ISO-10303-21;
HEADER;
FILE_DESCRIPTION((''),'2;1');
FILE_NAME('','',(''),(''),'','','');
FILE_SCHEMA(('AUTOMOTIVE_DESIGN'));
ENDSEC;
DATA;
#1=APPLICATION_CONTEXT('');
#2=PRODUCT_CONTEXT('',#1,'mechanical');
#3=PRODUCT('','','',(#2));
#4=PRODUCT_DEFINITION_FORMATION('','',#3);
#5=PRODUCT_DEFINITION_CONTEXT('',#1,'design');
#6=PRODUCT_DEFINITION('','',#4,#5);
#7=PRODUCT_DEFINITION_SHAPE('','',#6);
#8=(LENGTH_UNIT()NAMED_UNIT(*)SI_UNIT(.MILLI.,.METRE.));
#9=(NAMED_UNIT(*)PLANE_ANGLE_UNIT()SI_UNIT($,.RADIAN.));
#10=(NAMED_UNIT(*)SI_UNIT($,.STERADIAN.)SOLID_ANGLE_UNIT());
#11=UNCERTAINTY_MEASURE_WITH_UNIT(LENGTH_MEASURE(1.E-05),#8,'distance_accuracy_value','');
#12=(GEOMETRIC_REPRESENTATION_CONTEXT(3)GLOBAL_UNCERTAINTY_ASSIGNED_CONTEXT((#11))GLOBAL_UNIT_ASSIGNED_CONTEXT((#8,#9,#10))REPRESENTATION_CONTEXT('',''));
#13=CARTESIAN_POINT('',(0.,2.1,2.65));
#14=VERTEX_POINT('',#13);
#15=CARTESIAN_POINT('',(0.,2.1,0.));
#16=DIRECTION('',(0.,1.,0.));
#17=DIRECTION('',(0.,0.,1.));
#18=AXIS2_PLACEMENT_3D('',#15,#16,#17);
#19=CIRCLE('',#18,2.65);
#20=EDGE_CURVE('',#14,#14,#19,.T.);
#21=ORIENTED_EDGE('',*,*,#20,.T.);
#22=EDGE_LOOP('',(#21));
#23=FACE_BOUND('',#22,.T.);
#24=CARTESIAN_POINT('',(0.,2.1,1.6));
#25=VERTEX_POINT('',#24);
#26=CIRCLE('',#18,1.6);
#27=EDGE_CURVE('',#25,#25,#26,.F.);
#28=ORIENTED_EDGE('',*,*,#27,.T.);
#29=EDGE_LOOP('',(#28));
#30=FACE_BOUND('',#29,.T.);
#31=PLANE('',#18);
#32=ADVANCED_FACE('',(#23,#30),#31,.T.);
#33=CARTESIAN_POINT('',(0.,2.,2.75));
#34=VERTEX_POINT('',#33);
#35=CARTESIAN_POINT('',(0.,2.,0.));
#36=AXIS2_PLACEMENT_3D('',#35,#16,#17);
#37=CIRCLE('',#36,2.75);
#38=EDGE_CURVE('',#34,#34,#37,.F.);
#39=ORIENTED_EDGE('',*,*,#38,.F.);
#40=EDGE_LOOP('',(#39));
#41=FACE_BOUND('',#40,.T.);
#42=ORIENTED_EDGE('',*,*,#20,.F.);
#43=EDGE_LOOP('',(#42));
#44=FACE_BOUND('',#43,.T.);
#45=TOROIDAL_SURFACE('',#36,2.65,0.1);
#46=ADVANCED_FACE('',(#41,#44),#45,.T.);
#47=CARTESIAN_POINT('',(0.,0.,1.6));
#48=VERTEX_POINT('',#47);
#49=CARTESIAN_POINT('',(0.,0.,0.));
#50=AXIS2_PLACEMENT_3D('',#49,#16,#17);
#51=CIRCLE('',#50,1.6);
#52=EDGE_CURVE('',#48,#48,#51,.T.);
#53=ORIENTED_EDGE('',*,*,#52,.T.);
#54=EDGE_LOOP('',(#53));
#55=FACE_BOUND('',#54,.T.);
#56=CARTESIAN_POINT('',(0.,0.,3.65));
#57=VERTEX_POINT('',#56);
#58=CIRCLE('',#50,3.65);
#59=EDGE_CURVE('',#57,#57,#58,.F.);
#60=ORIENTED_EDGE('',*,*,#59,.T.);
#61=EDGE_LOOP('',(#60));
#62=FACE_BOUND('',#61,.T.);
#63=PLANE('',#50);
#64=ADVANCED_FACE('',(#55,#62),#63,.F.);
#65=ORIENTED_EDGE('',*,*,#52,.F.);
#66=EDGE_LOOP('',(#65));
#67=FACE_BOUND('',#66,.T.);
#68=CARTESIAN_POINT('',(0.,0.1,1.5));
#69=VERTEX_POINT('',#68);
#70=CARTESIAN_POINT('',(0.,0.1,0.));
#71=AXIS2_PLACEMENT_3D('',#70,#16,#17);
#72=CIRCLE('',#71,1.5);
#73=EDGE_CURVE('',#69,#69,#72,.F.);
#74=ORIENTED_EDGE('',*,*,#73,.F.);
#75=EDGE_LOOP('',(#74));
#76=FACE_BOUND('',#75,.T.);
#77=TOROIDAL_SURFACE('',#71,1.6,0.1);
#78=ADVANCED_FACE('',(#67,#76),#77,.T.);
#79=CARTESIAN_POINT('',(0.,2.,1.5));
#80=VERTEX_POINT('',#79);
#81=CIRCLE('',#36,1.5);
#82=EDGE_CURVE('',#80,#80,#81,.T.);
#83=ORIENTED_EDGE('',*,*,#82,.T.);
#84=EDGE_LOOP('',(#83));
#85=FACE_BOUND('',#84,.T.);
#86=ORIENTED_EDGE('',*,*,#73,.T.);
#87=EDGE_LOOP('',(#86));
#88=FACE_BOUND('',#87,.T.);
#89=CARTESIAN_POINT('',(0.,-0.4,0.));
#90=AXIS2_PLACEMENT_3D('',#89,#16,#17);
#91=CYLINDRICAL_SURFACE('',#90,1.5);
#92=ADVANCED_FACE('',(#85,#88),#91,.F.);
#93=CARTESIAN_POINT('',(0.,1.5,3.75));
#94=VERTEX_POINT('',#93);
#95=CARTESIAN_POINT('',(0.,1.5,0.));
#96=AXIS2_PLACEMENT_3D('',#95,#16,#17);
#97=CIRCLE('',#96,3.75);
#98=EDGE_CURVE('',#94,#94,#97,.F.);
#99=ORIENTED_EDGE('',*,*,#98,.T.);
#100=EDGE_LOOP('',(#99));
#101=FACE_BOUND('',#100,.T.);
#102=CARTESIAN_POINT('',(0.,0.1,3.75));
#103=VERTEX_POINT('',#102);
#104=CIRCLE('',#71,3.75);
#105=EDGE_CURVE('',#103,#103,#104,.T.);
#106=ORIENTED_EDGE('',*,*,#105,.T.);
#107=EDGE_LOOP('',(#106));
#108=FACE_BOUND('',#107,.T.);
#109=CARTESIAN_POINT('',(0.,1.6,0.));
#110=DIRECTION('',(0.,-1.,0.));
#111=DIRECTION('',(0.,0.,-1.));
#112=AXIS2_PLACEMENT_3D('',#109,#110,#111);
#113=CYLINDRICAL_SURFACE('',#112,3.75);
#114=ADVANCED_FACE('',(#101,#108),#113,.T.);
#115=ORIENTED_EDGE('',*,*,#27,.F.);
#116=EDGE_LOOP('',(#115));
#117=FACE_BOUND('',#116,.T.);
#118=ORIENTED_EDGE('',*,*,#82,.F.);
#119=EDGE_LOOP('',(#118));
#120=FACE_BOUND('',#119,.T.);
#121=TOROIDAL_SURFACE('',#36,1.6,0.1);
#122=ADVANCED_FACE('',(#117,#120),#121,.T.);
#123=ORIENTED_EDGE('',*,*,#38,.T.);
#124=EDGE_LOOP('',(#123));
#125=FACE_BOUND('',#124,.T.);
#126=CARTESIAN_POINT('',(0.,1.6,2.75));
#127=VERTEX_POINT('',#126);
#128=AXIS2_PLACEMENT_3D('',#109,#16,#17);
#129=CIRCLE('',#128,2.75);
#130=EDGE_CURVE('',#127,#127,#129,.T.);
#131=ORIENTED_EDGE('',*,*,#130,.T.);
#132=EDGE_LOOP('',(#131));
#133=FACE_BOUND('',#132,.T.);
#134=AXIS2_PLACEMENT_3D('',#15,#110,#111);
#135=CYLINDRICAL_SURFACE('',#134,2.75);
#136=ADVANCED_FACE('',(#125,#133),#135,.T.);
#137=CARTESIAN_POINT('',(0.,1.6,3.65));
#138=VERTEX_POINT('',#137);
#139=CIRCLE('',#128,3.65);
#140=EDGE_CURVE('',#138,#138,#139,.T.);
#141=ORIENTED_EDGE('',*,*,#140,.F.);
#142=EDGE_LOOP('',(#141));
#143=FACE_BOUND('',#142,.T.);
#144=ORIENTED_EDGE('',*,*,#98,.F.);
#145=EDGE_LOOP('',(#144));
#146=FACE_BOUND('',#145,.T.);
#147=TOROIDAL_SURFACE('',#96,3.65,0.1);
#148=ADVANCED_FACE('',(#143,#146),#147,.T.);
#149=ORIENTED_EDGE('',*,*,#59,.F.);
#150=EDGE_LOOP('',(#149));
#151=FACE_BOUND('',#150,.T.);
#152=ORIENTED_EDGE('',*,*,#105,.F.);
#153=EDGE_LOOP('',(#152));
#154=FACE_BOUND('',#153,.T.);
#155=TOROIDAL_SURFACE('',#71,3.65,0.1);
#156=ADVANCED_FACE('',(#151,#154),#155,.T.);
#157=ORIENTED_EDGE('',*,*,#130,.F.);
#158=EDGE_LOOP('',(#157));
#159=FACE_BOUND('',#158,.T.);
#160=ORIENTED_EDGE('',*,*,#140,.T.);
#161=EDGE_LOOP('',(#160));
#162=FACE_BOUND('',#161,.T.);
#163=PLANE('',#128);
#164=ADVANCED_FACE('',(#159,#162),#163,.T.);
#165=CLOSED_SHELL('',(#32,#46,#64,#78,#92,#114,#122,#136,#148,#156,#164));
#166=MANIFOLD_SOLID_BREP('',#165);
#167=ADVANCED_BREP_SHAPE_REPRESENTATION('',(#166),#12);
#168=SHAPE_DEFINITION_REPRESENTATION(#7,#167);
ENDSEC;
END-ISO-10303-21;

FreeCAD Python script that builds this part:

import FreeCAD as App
import Part
import Sketcher


def edges_at(feature, points):
    """Names of the edges that pass closest to the given points."""
    edges = feature.Shape.Edges
    near = lambda p: min(range(len(edges)), key=lambda i: edges[i].distToShape(Part.Vertex(*p))[0])
    return sorted({f"Edge{near(p) + 1}" for p in points})

doc = App.newDocument("Part")
body = doc.addObject("PartDesign::Body", "Body")

# Sketch on XZ plane
sketch1 = doc.addObject("Sketcher::SketchObject", "Sketch")
body.addObject(sketch1)
sketch1.AttachmentSupport = (doc.XZ_Plane, [""])
sketch1.MapMode = "FlatFace"
sketch1.addGeometry(Part.Circle(App.Vector(0, 0, 0), App.Vector(0, 0, 1), 3.8), False)
sketch1.addConstraint([
    Sketcher.Constraint("Coincident", 0, 3, -1, 1),
    Sketcher.Constraint("Diameter", 0, 7.5),
])
pad1 = doc.addObject("PartDesign::Pad", "Pad")
body.addObject(pad1)
pad1.Profile = sketch1
pad1.Length = 1.6
pad1.Reversed = True

# Sketch on XZ plane
sketch2 = doc.addObject("Sketcher::SketchObject", "Sketch001")
body.addObject(sketch2)
sketch2.AttachmentSupport = (doc.XZ_Plane, [""])
sketch2.MapMode = "FlatFace"
sketch2.AttachmentOffset = App.Placement(App.Vector(0, 0, -1.6), App.Rotation())
sketch2.addGeometry(Part.Circle(App.Vector(0, 0, 0), App.Vector(0, 0, 1), 1.5), False)
sketch2.addConstraint([
    Sketcher.Constraint("Coincident", 0, 3, -1, 1),
    Sketcher.Constraint("Diameter", 0, 3.0),
])
pocket1 = doc.addObject("PartDesign::Pocket", "Pocket")
body.addObject(pocket1)
pocket1.Profile = sketch2
pocket1.Length = 2
pocket1.Reversed = True

# Sketch on XZ plane
sketch3 = doc.addObject("Sketcher::SketchObject", "Sketch002")
body.addObject(sketch3)
sketch3.AttachmentSupport = (doc.XZ_Plane, [""])
sketch3.MapMode = "FlatFace"
sketch3.AttachmentOffset = App.Placement(App.Vector(0, 0, -1.6), App.Rotation())
sketch3.addGeometry(Part.Circle(App.Vector(0, 0, 0), App.Vector(0, 0, 1), 2.8), False)
sketch3.addConstraint([
    Sketcher.Constraint("Coincident", 0, 3, -1, 1),
    Sketcher.Constraint("Diameter", 0, 5.5),
])
pad2 = doc.addObject("PartDesign::Pad", "Pad001")
body.addObject(pad2)
pad2.Profile = sketch3
pad2.Length = 0.5
pad2.Reversed = True

# Sketch on XZ plane
sketch4 = doc.addObject("Sketcher::SketchObject", "Sketch003")
body.addObject(sketch4)
sketch4.AttachmentSupport = (doc.XZ_Plane, [""])
sketch4.MapMode = "FlatFace"
sketch4.AttachmentOffset = App.Placement(App.Vector(0, 0, -2.1), App.Rotation())
sketch4.addGeometry(Part.Circle(App.Vector(0, 0, 0), App.Vector(0, 0, 1), 1.5), False)
sketch4.addConstraint([
    Sketcher.Constraint("Coincident", 0, 3, -1, 1),
    Sketcher.Constraint("Diameter", 0, 3.0),
])
pocket2 = doc.addObject("PartDesign::Pocket", "Pocket001")
body.addObject(pocket2)
pocket2.Profile = sketch4
pocket2.Length = 3
pocket2.Reversed = True
doc.recompute()

fillet = doc.addObject("PartDesign::Fillet", "Fillet")
body.addObject(fillet)
fillet.Base = (pocket2, edges_at(pocket2, [
    (0, 2.1, -2.75),
    (0, 2.1, -1.5),
    (0, 0, -3.75),
    (0, 1.6, -3.75),
    (0, 0, -1.5),
]))
fillet.Radius = 0.1

doc.recompute()
